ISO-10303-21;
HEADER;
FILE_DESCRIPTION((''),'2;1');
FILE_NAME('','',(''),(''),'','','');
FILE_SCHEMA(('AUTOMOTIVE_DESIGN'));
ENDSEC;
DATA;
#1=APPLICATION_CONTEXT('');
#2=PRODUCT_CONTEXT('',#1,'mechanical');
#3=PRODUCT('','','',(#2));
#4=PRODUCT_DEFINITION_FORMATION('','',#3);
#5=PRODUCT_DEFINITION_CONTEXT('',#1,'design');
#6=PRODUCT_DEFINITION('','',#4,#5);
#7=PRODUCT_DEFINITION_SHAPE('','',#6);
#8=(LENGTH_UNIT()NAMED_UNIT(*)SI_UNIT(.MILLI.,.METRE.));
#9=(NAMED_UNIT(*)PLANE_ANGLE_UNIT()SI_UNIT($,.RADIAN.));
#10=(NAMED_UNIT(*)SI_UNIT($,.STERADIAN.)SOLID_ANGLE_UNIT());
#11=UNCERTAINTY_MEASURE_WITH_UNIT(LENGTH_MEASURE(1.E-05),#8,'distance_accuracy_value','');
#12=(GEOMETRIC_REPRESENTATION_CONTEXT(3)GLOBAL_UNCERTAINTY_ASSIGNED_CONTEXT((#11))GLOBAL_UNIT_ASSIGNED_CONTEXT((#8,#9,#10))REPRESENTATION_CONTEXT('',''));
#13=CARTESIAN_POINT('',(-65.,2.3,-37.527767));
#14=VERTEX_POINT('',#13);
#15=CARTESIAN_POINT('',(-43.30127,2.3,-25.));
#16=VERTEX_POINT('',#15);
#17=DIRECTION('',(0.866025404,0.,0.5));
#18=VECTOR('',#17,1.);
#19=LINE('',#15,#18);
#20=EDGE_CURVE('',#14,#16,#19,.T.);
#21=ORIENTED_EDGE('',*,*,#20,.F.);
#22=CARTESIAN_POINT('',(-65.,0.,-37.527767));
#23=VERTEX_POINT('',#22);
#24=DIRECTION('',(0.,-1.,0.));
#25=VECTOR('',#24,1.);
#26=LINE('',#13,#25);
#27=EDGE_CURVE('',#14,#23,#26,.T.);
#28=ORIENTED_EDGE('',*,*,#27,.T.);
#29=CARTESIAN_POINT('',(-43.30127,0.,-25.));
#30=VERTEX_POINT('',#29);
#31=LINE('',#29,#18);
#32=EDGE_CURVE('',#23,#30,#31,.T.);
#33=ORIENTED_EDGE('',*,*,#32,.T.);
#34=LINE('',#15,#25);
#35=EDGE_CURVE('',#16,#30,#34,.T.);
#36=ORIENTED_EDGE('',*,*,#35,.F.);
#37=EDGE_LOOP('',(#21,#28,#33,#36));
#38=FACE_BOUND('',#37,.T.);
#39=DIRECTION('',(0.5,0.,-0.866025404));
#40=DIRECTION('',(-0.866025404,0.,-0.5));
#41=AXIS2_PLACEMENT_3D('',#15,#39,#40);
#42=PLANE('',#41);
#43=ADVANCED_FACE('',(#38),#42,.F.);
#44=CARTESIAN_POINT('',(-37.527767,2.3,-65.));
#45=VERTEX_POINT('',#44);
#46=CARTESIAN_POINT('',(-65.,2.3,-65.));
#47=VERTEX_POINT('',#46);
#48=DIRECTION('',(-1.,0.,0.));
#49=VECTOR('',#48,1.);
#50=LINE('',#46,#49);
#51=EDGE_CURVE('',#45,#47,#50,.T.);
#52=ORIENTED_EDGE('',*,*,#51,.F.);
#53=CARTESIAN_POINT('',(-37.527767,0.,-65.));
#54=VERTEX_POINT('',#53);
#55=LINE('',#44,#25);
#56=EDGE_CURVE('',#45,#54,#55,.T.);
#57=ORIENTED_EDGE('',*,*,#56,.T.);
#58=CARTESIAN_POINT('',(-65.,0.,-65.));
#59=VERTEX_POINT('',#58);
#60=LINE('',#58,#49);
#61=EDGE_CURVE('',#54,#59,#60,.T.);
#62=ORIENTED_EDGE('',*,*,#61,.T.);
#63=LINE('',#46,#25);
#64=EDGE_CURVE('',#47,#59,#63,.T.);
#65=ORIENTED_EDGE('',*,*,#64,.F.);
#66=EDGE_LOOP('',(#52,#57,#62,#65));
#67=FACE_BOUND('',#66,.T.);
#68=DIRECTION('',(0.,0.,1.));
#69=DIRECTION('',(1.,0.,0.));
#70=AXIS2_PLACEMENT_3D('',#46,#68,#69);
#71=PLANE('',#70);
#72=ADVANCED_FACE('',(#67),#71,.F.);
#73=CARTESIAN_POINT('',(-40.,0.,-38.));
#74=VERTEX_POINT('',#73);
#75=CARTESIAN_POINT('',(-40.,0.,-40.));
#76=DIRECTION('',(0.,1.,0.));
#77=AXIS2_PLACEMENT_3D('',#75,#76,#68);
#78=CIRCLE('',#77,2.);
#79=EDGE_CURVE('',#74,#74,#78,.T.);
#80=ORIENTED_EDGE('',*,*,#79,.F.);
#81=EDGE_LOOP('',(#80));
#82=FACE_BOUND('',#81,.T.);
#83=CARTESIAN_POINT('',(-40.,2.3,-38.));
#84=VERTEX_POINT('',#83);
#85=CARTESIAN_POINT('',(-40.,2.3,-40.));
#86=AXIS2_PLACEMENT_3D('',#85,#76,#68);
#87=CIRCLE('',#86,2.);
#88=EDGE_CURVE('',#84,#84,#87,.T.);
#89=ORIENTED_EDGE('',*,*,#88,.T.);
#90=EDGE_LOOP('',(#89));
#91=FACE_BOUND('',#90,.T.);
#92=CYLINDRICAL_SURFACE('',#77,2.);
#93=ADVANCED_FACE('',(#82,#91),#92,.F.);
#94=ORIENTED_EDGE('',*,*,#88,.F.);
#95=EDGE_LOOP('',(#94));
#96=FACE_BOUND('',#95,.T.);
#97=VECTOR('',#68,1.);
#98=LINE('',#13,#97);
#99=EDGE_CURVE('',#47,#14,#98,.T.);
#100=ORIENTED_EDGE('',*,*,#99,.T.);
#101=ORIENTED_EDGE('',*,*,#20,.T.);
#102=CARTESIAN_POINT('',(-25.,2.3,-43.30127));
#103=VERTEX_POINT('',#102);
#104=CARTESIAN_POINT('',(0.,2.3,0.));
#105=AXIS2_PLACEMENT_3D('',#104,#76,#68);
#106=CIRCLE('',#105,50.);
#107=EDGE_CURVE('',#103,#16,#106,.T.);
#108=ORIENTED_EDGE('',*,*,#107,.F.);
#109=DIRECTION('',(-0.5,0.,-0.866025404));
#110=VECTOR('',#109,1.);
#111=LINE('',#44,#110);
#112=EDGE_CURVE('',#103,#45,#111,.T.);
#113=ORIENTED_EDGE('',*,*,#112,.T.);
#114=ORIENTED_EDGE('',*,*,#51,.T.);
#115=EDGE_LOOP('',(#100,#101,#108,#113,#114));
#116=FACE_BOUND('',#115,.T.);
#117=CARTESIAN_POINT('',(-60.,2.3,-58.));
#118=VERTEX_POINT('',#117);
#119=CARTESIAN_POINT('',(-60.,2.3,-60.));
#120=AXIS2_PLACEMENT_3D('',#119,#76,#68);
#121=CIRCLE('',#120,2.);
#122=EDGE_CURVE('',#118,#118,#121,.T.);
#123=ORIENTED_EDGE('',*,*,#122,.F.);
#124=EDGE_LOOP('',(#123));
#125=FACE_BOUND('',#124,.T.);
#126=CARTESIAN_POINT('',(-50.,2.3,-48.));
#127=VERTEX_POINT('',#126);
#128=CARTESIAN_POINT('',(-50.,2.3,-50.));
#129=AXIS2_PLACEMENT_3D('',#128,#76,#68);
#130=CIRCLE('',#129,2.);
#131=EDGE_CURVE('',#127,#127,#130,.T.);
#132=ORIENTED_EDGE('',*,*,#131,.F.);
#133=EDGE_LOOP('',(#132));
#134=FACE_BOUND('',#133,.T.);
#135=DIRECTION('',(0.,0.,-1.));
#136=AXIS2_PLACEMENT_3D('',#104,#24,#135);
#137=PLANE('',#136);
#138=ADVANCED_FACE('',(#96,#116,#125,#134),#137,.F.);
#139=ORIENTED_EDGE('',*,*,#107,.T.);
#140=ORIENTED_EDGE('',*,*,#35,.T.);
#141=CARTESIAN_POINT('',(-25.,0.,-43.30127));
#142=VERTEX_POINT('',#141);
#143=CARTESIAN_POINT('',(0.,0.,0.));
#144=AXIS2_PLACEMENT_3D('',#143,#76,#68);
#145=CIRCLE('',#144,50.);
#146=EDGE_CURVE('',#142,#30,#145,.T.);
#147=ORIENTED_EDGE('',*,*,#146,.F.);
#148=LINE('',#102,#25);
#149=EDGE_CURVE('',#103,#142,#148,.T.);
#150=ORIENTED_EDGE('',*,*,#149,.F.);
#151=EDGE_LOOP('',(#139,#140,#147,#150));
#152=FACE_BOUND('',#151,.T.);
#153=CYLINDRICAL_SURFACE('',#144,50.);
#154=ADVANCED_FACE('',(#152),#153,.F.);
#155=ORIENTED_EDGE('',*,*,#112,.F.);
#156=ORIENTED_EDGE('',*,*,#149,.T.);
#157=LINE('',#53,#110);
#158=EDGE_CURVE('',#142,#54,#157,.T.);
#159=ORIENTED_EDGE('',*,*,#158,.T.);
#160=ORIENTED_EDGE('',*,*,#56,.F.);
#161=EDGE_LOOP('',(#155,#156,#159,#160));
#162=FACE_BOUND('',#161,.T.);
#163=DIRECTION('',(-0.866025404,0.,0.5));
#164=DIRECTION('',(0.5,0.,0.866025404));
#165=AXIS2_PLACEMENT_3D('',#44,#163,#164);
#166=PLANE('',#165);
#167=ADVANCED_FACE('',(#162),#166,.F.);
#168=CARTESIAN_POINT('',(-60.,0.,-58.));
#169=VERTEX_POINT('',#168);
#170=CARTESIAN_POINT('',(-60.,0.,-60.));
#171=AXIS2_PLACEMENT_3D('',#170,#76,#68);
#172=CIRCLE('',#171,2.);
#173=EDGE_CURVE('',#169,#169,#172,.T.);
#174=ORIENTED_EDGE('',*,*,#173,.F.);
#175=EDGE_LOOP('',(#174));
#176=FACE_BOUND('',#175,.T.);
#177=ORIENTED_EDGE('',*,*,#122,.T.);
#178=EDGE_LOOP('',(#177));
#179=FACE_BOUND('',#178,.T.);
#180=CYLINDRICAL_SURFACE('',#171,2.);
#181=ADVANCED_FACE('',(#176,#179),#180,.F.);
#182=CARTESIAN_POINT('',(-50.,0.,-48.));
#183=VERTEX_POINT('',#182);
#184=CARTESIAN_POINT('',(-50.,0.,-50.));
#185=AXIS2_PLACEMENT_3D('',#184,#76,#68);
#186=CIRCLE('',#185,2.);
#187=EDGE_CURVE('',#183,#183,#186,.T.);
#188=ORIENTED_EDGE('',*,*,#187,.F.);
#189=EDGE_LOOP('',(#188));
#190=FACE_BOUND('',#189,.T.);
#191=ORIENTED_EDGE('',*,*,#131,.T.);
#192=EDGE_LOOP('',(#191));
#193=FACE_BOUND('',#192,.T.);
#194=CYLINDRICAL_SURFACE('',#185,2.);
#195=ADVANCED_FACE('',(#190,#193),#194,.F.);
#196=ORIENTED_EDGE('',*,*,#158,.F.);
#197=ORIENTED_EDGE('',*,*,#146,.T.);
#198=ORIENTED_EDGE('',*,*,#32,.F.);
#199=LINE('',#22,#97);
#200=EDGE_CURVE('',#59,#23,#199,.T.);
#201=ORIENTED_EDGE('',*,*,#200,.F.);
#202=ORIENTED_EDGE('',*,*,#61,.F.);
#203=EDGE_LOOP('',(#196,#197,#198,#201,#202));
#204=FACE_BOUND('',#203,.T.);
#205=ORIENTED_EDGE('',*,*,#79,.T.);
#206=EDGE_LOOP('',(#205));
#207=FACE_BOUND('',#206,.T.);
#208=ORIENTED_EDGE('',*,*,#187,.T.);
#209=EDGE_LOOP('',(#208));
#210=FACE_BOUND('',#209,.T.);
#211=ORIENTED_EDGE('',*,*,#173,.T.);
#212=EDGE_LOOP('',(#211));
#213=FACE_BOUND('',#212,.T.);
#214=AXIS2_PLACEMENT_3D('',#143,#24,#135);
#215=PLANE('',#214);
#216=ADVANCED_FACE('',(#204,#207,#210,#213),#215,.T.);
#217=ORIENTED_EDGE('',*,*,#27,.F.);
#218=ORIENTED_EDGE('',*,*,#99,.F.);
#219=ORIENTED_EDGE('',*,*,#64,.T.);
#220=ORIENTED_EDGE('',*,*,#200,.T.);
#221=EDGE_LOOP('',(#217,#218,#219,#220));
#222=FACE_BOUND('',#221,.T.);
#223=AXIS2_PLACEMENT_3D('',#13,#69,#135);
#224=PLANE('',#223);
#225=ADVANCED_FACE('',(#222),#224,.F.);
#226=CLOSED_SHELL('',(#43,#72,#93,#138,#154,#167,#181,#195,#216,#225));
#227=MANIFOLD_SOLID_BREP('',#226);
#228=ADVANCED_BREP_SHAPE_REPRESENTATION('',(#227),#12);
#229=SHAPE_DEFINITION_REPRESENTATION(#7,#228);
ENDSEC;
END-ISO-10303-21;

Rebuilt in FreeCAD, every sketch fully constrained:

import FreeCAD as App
import Part
import Sketcher
Q = App.Units.Quantity

doc = App.newDocument("Part")
body = doc.addObject("PartDesign::Body", "Body")

# Sketch on XZ plane
sketch1 = body.newObject("Sketcher::SketchObject", "Sketch")
sketch1.AttachmentSupport = (doc.getObject("XZ_Plane"), [""])
sketch1.MapMode = "FlatFace"
sketch1.addGeometry(Part.LineSegment(App.Vector(-37.527767, -65, 0), App.Vector(-65, -65, 0)), False)
sketch1.addGeometry(Part.LineSegment(App.Vector(-65, -65, 0), App.Vector(-65, -37.527767, 0)), False)
sketch1.addGeometry(Part.LineSegment(App.Vector(-65, -37.527767, 0), App.Vector(-43.30127, -25, 0)), False)
sketch1.addGeometry(Part.LineSegment(App.Vector(-43.30127, -25, 0), App.Vector(-25, -43.30127, 0)), False)
sketch1.addGeometry(Part.LineSegment(App.Vector(-25, -43.30127, 0), App.Vector(-37.527767, -65, 0)), False)
sketch1.addConstraint(Sketcher.Constraint("Coincident", 0, 2, 1, 1))
sketch1.addConstraint(Sketcher.Constraint("Coincident", 1, 2, 2, 1))
sketch1.addConstraint(Sketcher.Constraint("Coincident", 2, 2, 3, 1))
sketch1.addConstraint(Sketcher.Constraint("Coincident", 3, 2, 4, 1))
sketch1.addConstraint(Sketcher.Constraint("Coincident", 4, 2, 0, 1))
sketch1.addConstraint(Sketcher.Constraint("Horizontal", 0))
sketch1.addConstraint(Sketcher.Constraint("Vertical", 1))
sketch1.addConstraint(Sketcher.Constraint("Equal", 0, 1))
sketch1.addConstraint(Sketcher.Constraint("Equal", 2, 4))
sketch1.addConstraint(Sketcher.Constraint("Angle", 2, Q("30 deg")))
sketch1.addConstraint(Sketcher.Constraint("Angle", 3, Q("-45 deg")))
sketch1.addConstraint(Sketcher.Constraint("DistanceX", 0, 2, -1, 1, Q("65 mm")))
sketch1.addConstraint(Sketcher.Constraint("DistanceY", 0, 2, -1, 1, Q("65 mm")))
sketch1.addConstraint(Sketcher.Constraint("DistanceY", 2, 2, -1, 1, Q("25 mm")))
sketch1.addConstraint(Sketcher.Constraint("DistanceX", 0, 2, 0, 1, Q("27.472233 mm")))
pad1 = body.newObject("PartDesign::Pad", "Pad")
pad1.Profile = sketch1
pad1.Length = 2.3
pad1.Reversed = True

# Sketch on XZ plane
sketch2 = body.newObject("Sketcher::SketchObject", "Sketch001")
sketch2.AttachmentSupport = (doc.getObject("XZ_Plane"), [""])
sketch2.MapMode = "FlatFace"
sketch2.AttachmentOffset = App.Placement(App.Vector(0, 0, -2.3), App.Rotation())
sketch2.addGeometry(Part.Circle(App.Vector(-60, -60, 0), App.Vector(0, 0, 1), 2), False)
sketch2.addGeometry(Part.Circle(App.Vector(-50, -50, 0), App.Vector(0, 0, 1), 2), False)
sketch2.addGeometry(Part.Circle(App.Vector(-40, -40, 0), App.Vector(0, 0, 1), 2), False)
sketch2.addGeometry(Part.Circle(App.Vector(0, 0, 0), App.Vector(0, 0, 1), 50), False)
sketch2.addConstraint(Sketcher.Constraint("Coincident", 3, 3, -1, 1))
sketch2.addConstraint(Sketcher.Constraint("Equal", 0, 1))
sketch2.addConstraint(Sketcher.Constraint("Equal", 1, 2))
sketch2.addConstraint(Sketcher.Constraint("Diameter", 0, Q("4 mm")))
sketch2.addConstraint(Sketcher.Constraint("Diameter", 3, Q("100 mm")))
sketch2.addConstraint(Sketcher.Constraint("DistanceX", 0, 3, -1, 1, Q("60 mm")))
sketch2.addConstraint(Sketcher.Constraint("DistanceY", 0, 3, -1, 1, Q("60 mm")))
sketch2.addConstraint(Sketcher.Constraint("DistanceX", 1, 3, -1, 1, Q("50 mm")))
sketch2.addConstraint(Sketcher.Constraint("DistanceY", 1, 3, -1, 1, Q("50 mm")))
sketch2.addConstraint(Sketcher.Constraint("DistanceX", 2, 3, -1, 1, Q("40 mm")))
sketch2.addConstraint(Sketcher.Constraint("DistanceY", 2, 3, -1, 1, Q("40 mm")))
pocket1 = body.newObject("PartDesign::Pocket", "Pocket")
pocket1.Profile = sketch2
pocket1.Type = "ThroughAll"
pocket1.Reversed = True

doc.recompute()
